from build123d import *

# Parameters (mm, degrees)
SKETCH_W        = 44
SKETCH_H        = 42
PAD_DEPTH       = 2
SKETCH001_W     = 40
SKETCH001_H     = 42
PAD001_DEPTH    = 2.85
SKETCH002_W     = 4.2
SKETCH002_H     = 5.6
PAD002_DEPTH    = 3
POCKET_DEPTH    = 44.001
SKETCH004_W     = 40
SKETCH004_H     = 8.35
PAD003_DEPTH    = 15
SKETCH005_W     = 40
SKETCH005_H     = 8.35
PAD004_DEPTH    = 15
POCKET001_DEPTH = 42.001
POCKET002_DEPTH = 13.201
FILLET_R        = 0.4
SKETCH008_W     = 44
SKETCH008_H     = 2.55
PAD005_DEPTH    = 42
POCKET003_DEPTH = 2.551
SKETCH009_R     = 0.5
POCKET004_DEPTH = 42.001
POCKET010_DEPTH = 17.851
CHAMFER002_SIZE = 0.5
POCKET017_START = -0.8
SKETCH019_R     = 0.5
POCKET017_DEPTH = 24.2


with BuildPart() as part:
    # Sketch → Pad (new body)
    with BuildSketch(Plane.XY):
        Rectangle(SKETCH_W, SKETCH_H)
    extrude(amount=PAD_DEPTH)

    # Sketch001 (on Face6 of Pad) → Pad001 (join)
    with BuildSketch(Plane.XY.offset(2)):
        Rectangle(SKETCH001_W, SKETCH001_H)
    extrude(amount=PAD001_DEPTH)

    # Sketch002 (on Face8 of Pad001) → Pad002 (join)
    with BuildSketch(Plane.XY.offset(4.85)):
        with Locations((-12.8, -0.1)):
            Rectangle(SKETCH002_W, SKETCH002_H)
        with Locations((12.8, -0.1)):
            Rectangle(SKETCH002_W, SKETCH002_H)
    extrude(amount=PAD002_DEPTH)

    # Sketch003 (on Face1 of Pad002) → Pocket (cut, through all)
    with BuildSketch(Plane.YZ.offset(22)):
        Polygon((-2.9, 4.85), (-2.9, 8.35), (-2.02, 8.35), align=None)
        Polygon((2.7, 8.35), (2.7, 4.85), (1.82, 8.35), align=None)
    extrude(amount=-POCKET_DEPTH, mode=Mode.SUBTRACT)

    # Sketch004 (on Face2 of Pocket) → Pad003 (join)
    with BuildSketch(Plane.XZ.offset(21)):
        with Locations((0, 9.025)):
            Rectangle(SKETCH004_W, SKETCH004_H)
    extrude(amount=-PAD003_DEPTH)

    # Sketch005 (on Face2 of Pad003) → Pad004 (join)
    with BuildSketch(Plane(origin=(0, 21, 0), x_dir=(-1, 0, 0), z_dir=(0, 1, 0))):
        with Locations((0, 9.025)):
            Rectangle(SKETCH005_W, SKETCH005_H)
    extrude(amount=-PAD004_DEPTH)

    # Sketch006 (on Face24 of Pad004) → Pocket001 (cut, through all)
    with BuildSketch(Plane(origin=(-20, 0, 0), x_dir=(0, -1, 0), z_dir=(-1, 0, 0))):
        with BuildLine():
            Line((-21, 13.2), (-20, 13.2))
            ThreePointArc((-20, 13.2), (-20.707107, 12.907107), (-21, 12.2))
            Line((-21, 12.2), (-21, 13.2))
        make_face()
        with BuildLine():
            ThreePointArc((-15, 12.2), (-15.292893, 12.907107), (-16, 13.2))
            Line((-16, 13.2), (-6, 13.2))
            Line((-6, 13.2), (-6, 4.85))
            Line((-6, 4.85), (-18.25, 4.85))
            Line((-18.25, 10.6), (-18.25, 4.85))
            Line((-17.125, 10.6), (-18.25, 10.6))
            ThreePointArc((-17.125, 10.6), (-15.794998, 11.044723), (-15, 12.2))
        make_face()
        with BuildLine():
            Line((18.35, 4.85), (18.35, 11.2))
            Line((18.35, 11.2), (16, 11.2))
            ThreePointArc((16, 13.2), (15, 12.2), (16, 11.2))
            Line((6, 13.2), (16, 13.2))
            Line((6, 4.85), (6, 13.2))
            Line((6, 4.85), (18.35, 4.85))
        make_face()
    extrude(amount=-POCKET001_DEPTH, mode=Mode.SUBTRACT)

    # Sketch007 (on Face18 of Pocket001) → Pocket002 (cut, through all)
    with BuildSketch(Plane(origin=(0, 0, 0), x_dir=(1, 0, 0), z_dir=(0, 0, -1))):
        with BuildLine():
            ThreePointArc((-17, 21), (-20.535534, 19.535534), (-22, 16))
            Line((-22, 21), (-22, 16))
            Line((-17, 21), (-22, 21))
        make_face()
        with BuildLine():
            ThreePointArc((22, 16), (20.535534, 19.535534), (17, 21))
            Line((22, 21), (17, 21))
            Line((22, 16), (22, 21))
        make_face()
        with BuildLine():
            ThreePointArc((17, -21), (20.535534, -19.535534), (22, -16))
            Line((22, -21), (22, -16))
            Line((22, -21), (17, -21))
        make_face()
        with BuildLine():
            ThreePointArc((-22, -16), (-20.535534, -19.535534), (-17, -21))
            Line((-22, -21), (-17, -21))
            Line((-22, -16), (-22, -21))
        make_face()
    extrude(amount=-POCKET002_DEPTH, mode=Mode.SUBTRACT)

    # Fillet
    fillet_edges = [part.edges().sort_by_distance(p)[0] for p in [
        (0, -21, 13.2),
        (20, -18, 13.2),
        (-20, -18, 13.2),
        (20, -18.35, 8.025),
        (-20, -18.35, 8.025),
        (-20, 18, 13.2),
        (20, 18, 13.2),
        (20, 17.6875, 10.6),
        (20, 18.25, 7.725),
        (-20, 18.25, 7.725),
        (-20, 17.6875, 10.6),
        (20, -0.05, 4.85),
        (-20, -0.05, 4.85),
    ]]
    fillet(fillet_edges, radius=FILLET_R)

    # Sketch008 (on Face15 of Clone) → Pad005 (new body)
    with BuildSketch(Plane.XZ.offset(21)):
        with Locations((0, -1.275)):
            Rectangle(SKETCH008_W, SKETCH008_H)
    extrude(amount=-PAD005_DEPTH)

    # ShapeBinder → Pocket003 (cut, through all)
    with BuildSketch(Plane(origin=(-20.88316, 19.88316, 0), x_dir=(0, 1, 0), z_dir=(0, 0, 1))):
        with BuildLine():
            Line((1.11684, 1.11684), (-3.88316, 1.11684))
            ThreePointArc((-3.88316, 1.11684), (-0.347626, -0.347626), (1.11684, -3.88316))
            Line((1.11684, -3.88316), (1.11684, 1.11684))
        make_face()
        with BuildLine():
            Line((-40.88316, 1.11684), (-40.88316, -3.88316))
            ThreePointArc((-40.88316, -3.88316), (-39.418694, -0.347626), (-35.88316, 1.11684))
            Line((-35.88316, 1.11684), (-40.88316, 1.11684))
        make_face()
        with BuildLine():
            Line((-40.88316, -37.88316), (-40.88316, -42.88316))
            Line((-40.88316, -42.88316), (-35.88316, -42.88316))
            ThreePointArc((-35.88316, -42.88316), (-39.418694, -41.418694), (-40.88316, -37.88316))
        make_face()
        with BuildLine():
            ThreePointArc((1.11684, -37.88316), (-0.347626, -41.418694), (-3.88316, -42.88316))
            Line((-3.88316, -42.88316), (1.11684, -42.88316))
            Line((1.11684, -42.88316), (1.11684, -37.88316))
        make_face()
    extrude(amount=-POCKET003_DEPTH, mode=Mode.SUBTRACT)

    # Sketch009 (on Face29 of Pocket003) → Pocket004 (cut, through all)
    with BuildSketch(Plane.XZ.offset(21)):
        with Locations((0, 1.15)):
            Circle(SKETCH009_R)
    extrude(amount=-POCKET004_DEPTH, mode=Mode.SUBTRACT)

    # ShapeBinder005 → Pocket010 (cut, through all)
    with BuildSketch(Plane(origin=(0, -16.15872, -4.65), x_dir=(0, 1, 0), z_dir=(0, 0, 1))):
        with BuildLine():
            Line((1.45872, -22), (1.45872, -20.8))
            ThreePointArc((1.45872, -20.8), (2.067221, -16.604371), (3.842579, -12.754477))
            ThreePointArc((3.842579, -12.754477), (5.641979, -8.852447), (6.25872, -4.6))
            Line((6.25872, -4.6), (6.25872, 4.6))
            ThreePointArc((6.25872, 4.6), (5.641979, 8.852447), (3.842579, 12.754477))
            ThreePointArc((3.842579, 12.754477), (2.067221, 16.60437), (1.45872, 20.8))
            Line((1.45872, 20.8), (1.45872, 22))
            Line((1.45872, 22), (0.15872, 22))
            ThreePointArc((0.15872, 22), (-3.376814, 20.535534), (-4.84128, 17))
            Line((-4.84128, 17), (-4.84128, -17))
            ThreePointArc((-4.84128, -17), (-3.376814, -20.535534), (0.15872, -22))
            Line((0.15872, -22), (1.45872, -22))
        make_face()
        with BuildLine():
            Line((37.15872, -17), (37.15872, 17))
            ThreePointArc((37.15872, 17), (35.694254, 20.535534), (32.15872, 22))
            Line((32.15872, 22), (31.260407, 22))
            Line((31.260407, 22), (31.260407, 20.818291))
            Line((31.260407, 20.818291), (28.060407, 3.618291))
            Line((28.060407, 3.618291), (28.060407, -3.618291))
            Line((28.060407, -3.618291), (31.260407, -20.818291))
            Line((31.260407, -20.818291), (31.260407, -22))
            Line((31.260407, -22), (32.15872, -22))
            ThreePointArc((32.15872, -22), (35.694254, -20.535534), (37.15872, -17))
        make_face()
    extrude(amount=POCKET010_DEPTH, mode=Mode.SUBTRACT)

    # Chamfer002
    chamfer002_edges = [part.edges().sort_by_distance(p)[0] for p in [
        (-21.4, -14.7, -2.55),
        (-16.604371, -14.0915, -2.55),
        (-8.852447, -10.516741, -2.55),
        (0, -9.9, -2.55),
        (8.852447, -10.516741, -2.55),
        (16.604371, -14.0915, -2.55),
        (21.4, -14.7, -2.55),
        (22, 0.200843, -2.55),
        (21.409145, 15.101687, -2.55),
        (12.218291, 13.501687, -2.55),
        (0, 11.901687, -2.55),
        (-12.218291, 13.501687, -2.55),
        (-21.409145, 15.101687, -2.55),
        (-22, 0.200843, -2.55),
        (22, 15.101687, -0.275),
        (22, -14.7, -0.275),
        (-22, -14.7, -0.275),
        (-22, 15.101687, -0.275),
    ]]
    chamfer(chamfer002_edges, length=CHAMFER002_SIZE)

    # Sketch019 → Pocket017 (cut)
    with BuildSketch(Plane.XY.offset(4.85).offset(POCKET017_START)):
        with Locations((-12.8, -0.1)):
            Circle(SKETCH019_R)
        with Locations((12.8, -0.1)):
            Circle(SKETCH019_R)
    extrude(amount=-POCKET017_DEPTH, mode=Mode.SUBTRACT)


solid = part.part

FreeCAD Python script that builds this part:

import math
import FreeCAD as App
import Part
import Sketcher
from FreeCAD import Vector


def edges_at(feature, points):
    """Names of the edges that pass closest to the given points."""
    edges = feature.Shape.Edges
    near = lambda p: min(range(len(edges)), key=lambda i: edges[i].distToShape(Part.Vertex(*p))[0])
    return sorted({f"Edge{near(p) + 1}" for p in points})


def add_polygon(sketch, points):
    """Adds a closed chain of lines whose ends are joined by coincident constraints."""
    first, n = sketch.GeometryCount, len(points)
    for a, b in zip(points, points[1:] + points[:1]):
        sketch.addGeometry(Part.LineSegment(App.Vector(*a, 0), App.Vector(*b, 0)), False)
    for i in range(n):
        sketch.addConstraint(Sketcher.Constraint("Coincident", first + i, 2, first + (i + 1) % n, 1))

doc = App.newDocument("Part")
body = doc.addObject("PartDesign::Body", "Body")

sketch1 = doc.addObject("Sketcher::SketchObject", "Sketch")
body.addObject(sketch1)
sketch1.AttachmentSupport = (doc.XY_Plane, [""])
sketch1.MapMode = "FlatFace"
add_polygon(sketch1, [(-22, 21), (-22, -21), (22, -21), (22, 21)])
sketch1.addConstraint([
    Sketcher.Constraint("Vertical", 0),
    Sketcher.Constraint("Horizontal", 1),
    Sketcher.Constraint("Vertical", 2),
    Sketcher.Constraint("Horizontal", 3),
    Sketcher.Constraint("Symmetric", 0, 2, 2, 2, -1, 1),
    Sketcher.Constraint("DistanceX", 1, 1, 1, 2, 44.0),
    Sketcher.Constraint("DistanceY", 0, 2, 0, 1, 42.0),
])
pad1 = doc.addObject("PartDesign::Pad", "Pad")
body.addObject(pad1)
pad1.Profile = sketch1
pad1.Length = 2

sketch2 = doc.addObject("Sketcher::SketchObject", "Sketch001")
body.addObject(sketch2)
sketch2.AttachmentSupport = (doc.XY_Plane, [""])
sketch2.MapMode = "FlatFace"
sketch2.AttachmentOffset = App.Placement(Vector(0, 0, 2), App.Rotation())
add_polygon(sketch2, [(-20, 21), (-20, -21), (20, -21), (20, 21)])
sketch2.addConstraint([
    Sketcher.Constraint("Vertical", 0),
    Sketcher.Constraint("Horizontal", 1),
    Sketcher.Constraint("Vertical", 2),
    Sketcher.Constraint("Horizontal", 3),
    Sketcher.Constraint("Symmetric", 0, 2, 2, 2, -1, 1),
    Sketcher.Constraint("DistanceX", 1, 1, 1, 2, 40.0),
    Sketcher.Constraint("DistanceY", 0, 2, 0, 1, 42.0),
])
pad2 = doc.addObject("PartDesign::Pad", "Pad001")
body.addObject(pad2)
pad2.Profile = sketch2
pad2.Length = 2.85

sketch3 = doc.addObject("Sketcher::SketchObject", "Sketch002")
body.addObject(sketch3)
sketch3.AttachmentSupport = (doc.XY_Plane, [""])
sketch3.MapMode = "FlatFace"
sketch3.AttachmentOffset = App.Placement(Vector(0, 0, 4.85), App.Rotation())
add_polygon(sketch3, [(-14.9, 2.7), (-14.9, -2.9), (-10.7, -2.9), (-10.7, 2.7)])
add_polygon(sketch3, [(10.7, 2.7), (10.7, -2.9), (14.9, -2.9), (14.9, 2.7)])
sketch3.addConstraint([
    Sketcher.Constraint("Vertical", 0),
    Sketcher.Constraint("Horizontal", 1),
    Sketcher.Constraint("Vertical", 2),
    Sketcher.Constraint("Horizontal", 3),
    Sketcher.Constraint("Vertical", 4),
    Sketcher.Constraint("Horizontal", 5),
    Sketcher.Constraint("Vertical", 6),
    Sketcher.Constraint("Horizontal", 7),
    Sketcher.Constraint("Symmetric", 1, 2, 4, 2, -2),
    Sketcher.Constraint("Symmetric", 3, 2, 6, 2, -2),
    Sketcher.Constraint("DistanceX", 1, 1, 1, 2, 4.2),
    Sketcher.Constraint("DistanceY", 0, 2, 0, 1, 5.6),
    Sketcher.Constraint("DistanceX", 0, 2, -1, 1, 14.9),
    Sketcher.Constraint("DistanceY", 0, 2, -1, 1, 2.9),
])
pad3 = doc.addObject("PartDesign::Pad", "Pad002")
body.addObject(pad3)
pad3.Profile = sketch3
pad3.Length = 3

sketch4 = doc.addObject("Sketcher::SketchObject", "Sketch003")
body.addObject(sketch4)
sketch4.AttachmentSupport = (doc.YZ_Plane, [""])
sketch4.MapMode = "FlatFace"
sketch4.AttachmentOffset = App.Placement(Vector(0, 0, 22), App.Rotation())
add_polygon(sketch4, [(-2.9, 8.35), (-2.9, 4.85), (-2.02, 8.35)])
add_polygon(sketch4, [(2.7, 4.85), (2.7, 8.35), (1.82, 8.35)])
sketch4.addConstraint([
    Sketcher.Constraint("Vertical", 0),
    Sketcher.Constraint("Horizontal", 2),
    Sketcher.Constraint("Vertical", 3),
    Sketcher.Constraint("Horizontal", 4),
    Sketcher.Constraint("Horizontal", 2, 2, 3, 2),
    Sketcher.Constraint("Horizontal", 0, 2, 5, 2),
    Sketcher.Constraint("Equal", 2, 4),
    Sketcher.Constraint("DistanceY", 0, 2, 0, 1, 3.5),
    Sketcher.Constraint("DistanceX", 2, 2, 2, 1, 0.88),
    Sketcher.Constraint("DistanceX", 0, 2, -1, 1, 2.9),
    Sketcher.Constraint("DistanceX", -1, 1, 3, 2, 2.7),
    Sketcher.Constraint("DistanceY", -1, 1, 0, 2, 4.85),
])
pocket1 = doc.addObject("PartDesign::Pocket", "Pocket")
body.addObject(pocket1)
pocket1.Profile = sketch4
pocket1.Type = "ThroughAll"

sketch5 = doc.addObject("Sketcher::SketchObject", "Sketch004")
body.addObject(sketch5)
sketch5.AttachmentSupport = (doc.XZ_Plane, [""])
sketch5.MapMode = "FlatFace"
sketch5.AttachmentOffset = App.Placement(Vector(0, 0, 21), App.Rotation())
add_polygon(sketch5, [(-20, 13.2), (-20, 4.85), (20, 4.85), (20, 13.2)])
sketch5.addConstraint([
    Sketcher.Constraint("Vertical", 0),
    Sketcher.Constraint("Horizontal", 1),
    Sketcher.Constraint("Vertical", 2),
    Sketcher.Constraint("Horizontal", 3),
    Sketcher.Constraint("DistanceX", 1, 1, 1, 2, 40.0),
    Sketcher.Constraint("DistanceX", 0, 2, -1, 1, 20.0),
    Sketcher.Constraint("DistanceY", 0, 2, 0, 1, 8.35),
    Sketcher.Constraint("DistanceY", -1, 1, 2, 2, 13.2),
])
pad4 = doc.addObject("PartDesign::Pad", "Pad003")
body.addObject(pad4)
pad4.Profile = sketch5
pad4.Length = 15
pad4.Reversed = True

sketch6 = doc.addObject("Sketcher::SketchObject", "Sketch005")
body.addObject(sketch6)
sketch6.AttachmentSupport = (doc.XZ_Plane, [""])
sketch6.MapMode = "FlatFace"
sketch6.AttachmentOffset = App.Placement(Vector(0, 0, -21), App.Rotation())
add_polygon(sketch6, [(20, 13.2), (20, 4.85), (-20, 4.85), (-20, 13.2)])
sketch6.addConstraint([
    Sketcher.Constraint("Vertical", 0),
    Sketcher.Constraint("Horizontal", 1),
    Sketcher.Constraint("Vertical", 2),
    Sketcher.Constraint("Horizontal", 3),
    Sketcher.Constraint("DistanceX", 1, 2, 1, 1, 40.0),
    Sketcher.Constraint("DistanceX", -1, 1, 0, 2, 20.0),
    Sketcher.Constraint("DistanceY", 0, 2, 0, 1, 8.35),
    Sketcher.Constraint("DistanceY", -1, 1, 2, 2, 13.2),
])
pad5 = doc.addObject("PartDesign::Pad", "Pad004")
body.addObject(pad5)
pad5.Profile = sketch6
pad5.Length = 15

sketch7 = doc.addObject("Sketcher::SketchObject", "Sketch006")
body.addObject(sketch7)
sketch7.AttachmentSupport = (doc.YZ_Plane, [""])
sketch7.MapMode = "FlatFace"
sketch7.AttachmentOffset = App.Placement(Vector(0, 0, -20), App.Rotation())
sketch7.addGeometry([
    Part.LineSegment(Vector(20, 13.2, 0), Vector(21, 13.2, 0)),
    Part.LineSegment(Vector(21, 13.2, 0), Vector(21, 12.2, 0)),
    Part.ArcOfCircle(Part.Circle(Vector(20.000001, 12.200001, 0), Vector(0, 0, 1), 0.999999), math.radians(-0.000043), math.radians(90.000043)),
    Part.ArcOfCircle(Part.Circle(Vector(15.999999, 12.200001, 0), Vector(0, 0, 1), 0.999999), math.radians(89.999957), math.radians(180.000043)),
    Part.ArcOfCircle(Part.Circle(Vector(17.125, 12.811132, 0), Vector(0, 0, 1), 2.211132), math.radians(-163.955204), math.radians(-89.999989)),
    Part.LineSegment(Vector(17.125, 10.6, 0), Vector(18.25, 10.6, 0)),
    Part.LineSegment(Vector(18.25, 10.6, 0), Vector(18.25, 4.85, 0)),
    Part.LineSegment(Vector(18.25, 4.85, 0), Vector(6, 4.85, 0)),
    Part.LineSegment(Vector(6, 4.85, 0), Vector(6, 13.2, 0)),
    Part.LineSegment(Vector(6, 13.2, 0), Vector(16, 13.2, 0)),
    Part.LineSegment(Vector(-18.35, 4.85, 0), Vector(-18.35, 11.2, 0)),
    Part.LineSegment(Vector(-18.35, 11.2, 0), Vector(-16, 11.2, 0)),
    Part.ArcOfCircle(Part.Circle(Vector(-16, 12.2, 0), Vector(0, 0, 1), 1), math.radians(-90), math.radians(90)),
    Part.LineSegment(Vector(-16, 13.2, 0), Vector(-6, 13.2, 0)),
    Part.LineSegment(Vector(-6, 13.2, 0), Vector(-6, 4.85, 0)),
    Part.LineSegment(Vector(-6, 4.85, 0), Vector(-18.35, 4.85, 0)),
], False)
sketch7.addConstraint([
    Sketcher.Constraint("Coincident", 0, 2, 1, 1),
    Sketcher.Constraint("Tangent", 1, 2, 2, 1),
    Sketcher.Constraint("Tangent", 2, 2, 0, 1),
    Sketcher.Constraint("Coincident", 3, 2, 4, 1),
    Sketcher.Constraint("Tangent", 4, 2, 5, 1),
    Sketcher.Constraint("Coincident", 5, 2, 6, 1),
    Sketcher.Constraint("Coincident", 6, 2, 7, 1),
    Sketcher.Constraint("Coincident", 7, 2, 8, 1),
    Sketcher.Constraint("Coincident", 8, 2, 9, 1),
    Sketcher.Constraint("Tangent", 9, 2, 3, 1),
    Sketcher.Constraint("Coincident", 10, 2, 11, 1),
    Sketcher.Constraint("Tangent", 11, 2, 12, 1),
    Sketcher.Constraint("Tangent", 12, 2, 13, 1),
    Sketcher.Constraint("Coincident", 13, 2, 14, 1),
    Sketcher.Constraint("Coincident", 14, 2, 15, 1),
    Sketcher.Constraint("Coincident", 15, 2, 10, 1),
    Sketcher.Constraint("Horizontal", 0),
    Sketcher.Constraint("Vertical", 1),
    Sketcher.Constraint("Horizontal", 5),
    Sketcher.Constraint("Vertical", 6),
    Sketcher.Constraint("Horizontal", 7),
    Sketcher.Constraint("Vertical", 8),
    Sketcher.Constraint("Horizontal", 9),
    Sketcher.Constraint("Vertical", 10),
    Sketcher.Constraint("Horizontal", 11),
    Sketcher.Constraint("Horizontal", 13),
    Sketcher.Constraint("Vertical", 14),
    Sketcher.Constraint("Horizontal", 15),
    Sketcher.Constraint("Equal", 2, 3),
    Sketcher.Constraint("Equal", 3, 12),
    Sketcher.Constraint("Symmetric", 3, 3, 12, 3, -2),
    Sketcher.Constraint("Symmetric", 7, 2, 14, 2, -2),
    Sketcher.Constraint("Horizontal", 2, 3, 3, 3),
    Sketcher.Constraint("Horizontal", 1, 2, 3, 2),
    Sketcher.Constraint("Radius", 2, 0.999999),
    Sketcher.Constraint("DistanceX", 9, 1, 9, 2, 10.0),
    Sketcher.Constraint("DistanceX", -1, 1, 2, 3, 20.000001),
    Sketcher.Constraint("DistanceX", -1, 1, 3, 3, 15.999999),
    Sketcher.Constraint("DistanceX", 7, 2, 7, 1, 12.25),
    Sketcher.Constraint("DistanceX", 11, 1, 11, 2, 2.35),
    Sketcher.Constraint("DistanceY", 6, 2, 6, 1, 5.75),
    Sketcher.Constraint("DistanceY", 8, 1, 8, 2, 8.35),
    Sketcher.Constraint("DistanceY", -1, 1, 2, 3, 12.200001),
    Sketcher.Constraint("DistanceX", 5, 1, 5, 2, 1.125),
])
pocket2 = doc.addObject("PartDesign::Pocket", "Pocket001")
body.addObject(pocket2)
pocket2.Profile = sketch7
pocket2.Type = "ThroughAll"
pocket2.Reversed = True

sketch8 = doc.addObject("Sketcher::SketchObject", "Sketch007")
body.addObject(sketch8)
sketch8.AttachmentSupport = (doc.XY_Plane, [""])
sketch8.MapMode = "FlatFace"
sketch8.addGeometry([
    Part.ArcOfCircle(Part.Circle(Vector(-17, -16, 0), Vector(0, 0, 1), 5), math.radians(179.999996), math.radians(270.000004)),
    Part.LineSegment(Vector(-17, -21, 0), Vector(-22, -21, 0)),
    Part.LineSegment(Vector(-22, -21, 0), Vector(-22, -16, 0)),
    Part.ArcOfCircle(Part.Circle(Vector(17, -16, 0), Vector(0, 0, 1), 5), math.radians(-90.000004), math.radians(0.000004)),
    Part.LineSegment(Vector(22, -16, 0), Vector(22, -21, 0)),
    Part.LineSegment(Vector(22, -21, 0), Vector(17, -21, 0)),
    Part.ArcOfCircle(Part.Circle(Vector(17, 16, 0), Vector(0, 0, 1), 5), math.radians(-0.000004), math.radians(90.000004)),
    Part.LineSegment(Vector(17, 21, 0), Vector(22, 21, 0)),
    Part.LineSegment(Vector(22, 21, 0), Vector(22, 16, 0)),
    Part.ArcOfCircle(Part.Circle(Vector(-17, 16, 0), Vector(0, 0, 1), 5), math.radians(89.999996), math.radians(180.000004)),
    Part.LineSegment(Vector(-22, 16, 0), Vector(-22, 21, 0)),
    Part.LineSegment(Vector(-22, 21, 0), Vector(-17, 21, 0)),
], False)
sketch8.addConstraint([
    Sketcher.Constraint("Tangent", 0, 2, 1, 1),
    Sketcher.Constraint("Coincident", 1, 2, 2, 1),
    Sketcher.Constraint("Tangent", 2, 2, 0, 1),
    Sketcher.Constraint("Tangent", 3, 2, 4, 1),
    Sketcher.Constraint("Coincident", 4, 2, 5, 1),
    Sketcher.Constraint("Tangent", 5, 2, 3, 1),
    Sketcher.Constraint("Tangent", 6, 2, 7, 1),
    Sketcher.Constraint("Coincident", 7, 2, 8, 1),
    Sketcher.Constraint("Tangent", 8, 2, 6, 1),
    Sketcher.Constraint("Tangent", 9, 2, 10, 1),
    Sketcher.Constraint("Coincident", 10, 2, 11, 1),
    Sketcher.Constraint("Tangent", 11, 2, 9, 1),
    Sketcher.Constraint("Horizontal", 1),
    Sketcher.Constraint("Vertical", 2),
    Sketcher.Constraint("Vertical", 4),
    Sketcher.Constraint("Horizontal", 5),
    Sketcher.Constraint("Horizontal", 7),
    Sketcher.Constraint("Vertical", 8),
    Sketcher.Constraint("Vertical", 10),
    Sketcher.Constraint("Horizontal", 11),
    Sketcher.Constraint("Equal", 0, 3),
    Sketcher.Constraint("Equal", 3, 6),
    Sketcher.Constraint("Equal", 6, 9),
    Sketcher.Constraint("Symmetric", 0, 3, 6, 3, -1, 1),
    Sketcher.Constraint("Symmetric", 3, 3, 9, 3, -1, 1),
    Sketcher.Constraint("Symmetric", 0, 3, 3, 3, -2),
    Sketcher.Constraint("Radius", 0, 5.0),
    Sketcher.Constraint("DistanceX", 0, 3, -1, 1, 17.0),
    Sketcher.Constraint("DistanceY", 0, 3, -1, 1, 16.0),
])
pocket3 = doc.addObject("PartDesign::Pocket", "Pocket002")
body.addObject(pocket3)
pocket3.Profile = sketch8
pocket3.Type = "ThroughAll"
pocket3.Reversed = True
doc.recompute()

fillet = doc.addObject("PartDesign::Fillet", "Fillet")
body.addObject(fillet)
fillet.Base = (pocket3, edges_at(pocket3, [
    (0, -21, 13.2),
    (20, -18, 13.2),
    (-20, -18, 13.2),
    (20, -18.35, 8.025),
    (-20, -18.35, 8.025),
    (-20, 18, 13.2),
    (20, 18, 13.2),
    (20, 17.688, 10.6),
    (20, 18.25, 7.725),
    (-20, 18.25, 7.725),
    (-20, 17.688, 10.6),
    (20, -0.05, 4.85),
    (-20, -0.05, 4.85),
]))
fillet.Radius = 0.4

sketch9 = doc.addObject("Sketcher::SketchObject", "Sketch008")
body.addObject(sketch9)
sketch9.AttachmentSupport = (doc.XZ_Plane, [""])
sketch9.MapMode = "FlatFace"
sketch9.AttachmentOffset = App.Placement(Vector(0, 0, 21), App.Rotation())
add_polygon(sketch9, [(-22, 0), (-22, -2.55), (22, -2.55), (22, 0)])
sketch9.addConstraint([
    Sketcher.Constraint("Vertical", 0),
    Sketcher.Constraint("Horizontal", 1),
    Sketcher.Constraint("Vertical", 2),
    Sketcher.Constraint("Horizontal", 3),
    Sketcher.Constraint("Symmetric", 2, 2, 3, 2, -1, 1),
    Sketcher.Constraint("DistanceX", 1, 1, 1, 2, 44.0),
    Sketcher.Constraint("DistanceY", 0, 2, 0, 1, 2.55),
])
pad6 = doc.addObject("PartDesign::Pad", "Pad005")
body.addObject(pad6)
pad6.Profile = sketch9
pad6.Length = 42
pad6.Reversed = True

sketch10 = doc.addObject("Sketcher::SketchObject", "Sketch009")
body.addObject(sketch10)
sketch10.AttachmentSupport = (doc.XY_Plane, [""])
sketch10.MapMode = "FlatFace"
sketch10.addGeometry([
    Part.LineSegment(Vector(-22, 21, 0), Vector(-22, 16, 0)),
    Part.ArcOfCircle(Part.Circle(Vector(-17, 16, 0), Vector(0, 0, 1), 5), math.radians(89.999996), math.radians(180.000004)),
    Part.LineSegment(Vector(-17, 21, 0), Vector(-22, 21, 0)),
    Part.LineSegment(Vector(-22, -21, 0), Vector(-17, -21, 0)),
    Part.ArcOfCircle(Part.Circle(Vector(-17, -16, 0), Vector(0, 0, 1), 5), math.radians(179.999996), math.radians(270.000004)),
    Part.LineSegment(Vector(-22, -16, 0), Vector(-22, -21, 0)),
    Part.LineSegment(Vector(17, -21, 0), Vector(22, -21, 0)),
    Part.LineSegment(Vector(22, -21, 0), Vector(22, -16, 0)),
    Part.ArcOfCircle(Part.Circle(Vector(17, -16, 0), Vector(0, 0, 1), 5), math.radians(-90.000004), math.radians(0.000004)),
    Part.ArcOfCircle(Part.Circle(Vector(17, 16, 0), Vector(0, 0, 1), 5), math.radians(-0.000004), math.radians(90.000004)),
    Part.LineSegment(Vector(22, 16, 0), Vector(22, 21, 0)),
    Part.LineSegment(Vector(22, 21, 0), Vector(17, 21, 0)),
], False)
sketch10.addConstraint([
    Sketcher.Constraint("Tangent", 0, 2, 1, 2),
    Sketcher.Constraint("Tangent", 1, 1, 2, 1),
    Sketcher.Constraint("Coincident", 2, 2, 0, 1),
    Sketcher.Constraint("Tangent", 3, 2, 4, 2),
    Sketcher.Constraint("Tangent", 4, 1, 5, 1),
    Sketcher.Constraint("Coincident", 5, 2, 3, 1),
    Sketcher.Constraint("Coincident", 6, 2, 7, 1),
    Sketcher.Constraint("Tangent", 7, 2, 8, 2),
    Sketcher.Constraint("Tangent", 8, 1, 6, 1),
    Sketcher.Constraint("Tangent", 9, 1, 10, 1),
    Sketcher.Constraint("Coincident", 10, 2, 11, 1),
    Sketcher.Constraint("Tangent", 11, 2, 9, 2),
    Sketcher.Constraint("Vertical", 0),
    Sketcher.Constraint("Horizontal", 2),
    Sketcher.Constraint("Horizontal", 3),
    Sketcher.Constraint("Vertical", 5),
    Sketcher.Constraint("Horizontal", 6),
    Sketcher.Constraint("Vertical", 7),
    Sketcher.Constraint("Vertical", 10),
    Sketcher.Constraint("Horizontal", 11),
    Sketcher.Constraint("Equal", 1, 4),
    Sketcher.Constraint("Equal", 4, 8),
    Sketcher.Constraint("Equal", 8, 9),
    Sketcher.Constraint("Symmetric", 1, 3, 8, 3, -1, 1),
    Sketcher.Constraint("Symmetric", 4, 3, 9, 3, -1, 1),
    Sketcher.Constraint("Symmetric", 4, 3, 8, 3, -2),
    Sketcher.Constraint("Radius", 1, 5.0),
    Sketcher.Constraint("DistanceX", 1, 3, -1, 1, 17.0),
    Sketcher.Constraint("DistanceY", -1, 1, 1, 3, 16.0),
])
pocket4 = doc.addObject("PartDesign::Pocket", "Pocket003")
body.addObject(pocket4)
pocket4.Profile = sketch10
pocket4.Type = "ThroughAll"

sketch11 = doc.addObject("Sketcher::SketchObject", "Sketch010")
body.addObject(sketch11)
sketch11.AttachmentSupport = (doc.XZ_Plane, [""])
sketch11.MapMode = "FlatFace"
sketch11.AttachmentOffset = App.Placement(Vector(0, 0, 21), App.Rotation())
sketch11.addGeometry(Part.Circle(Vector(0, 1.15, 0), Vector(0, 0, 1), 0.5), False)
sketch11.addConstraint([
    Sketcher.Constraint("PointOnObject", 0, 3, -2),
    Sketcher.Constraint("Diameter", 0, 1.0),
    Sketcher.Constraint("DistanceY", -1, 1, 0, 3, 1.15),
])
pocket5 = doc.addObject("PartDesign::Pocket", "Pocket004")
body.addObject(pocket5)
pocket5.Profile = sketch11
pocket5.Type = "ThroughAll"

sketch12 = doc.addObject("Sketcher::SketchObject", "Sketch011")
body.addObject(sketch12)
sketch12.AttachmentSupport = (doc.XY_Plane, [""])
sketch12.MapMode = "FlatFace"
sketch12.AttachmentOffset = App.Placement(Vector(0, 0, -4.65), App.Rotation())
sketch12.addGeometry([
    Part.LineSegment(Vector(22, -14.7, 0), Vector(20.8, -14.7, 0)),
    Part.ArcOfCircle(Part.Circle(Vector(20.800004, 0.068763, 0), Vector(0, 0, 1), 14.768763), math.radians(-123.00871), math.radians(-90.000017)),
    Part.ArcOfCircle(Part.Circle(Vector(4.599997, -24.868761, 0), Vector(0, 0, 1), 14.968761), math.radians(56.991292), math.radians(89.99999)),
    Part.LineSegment(Vector(4.6, -9.9, 0), Vector(-4.6, -9.9, 0)),
    Part.ArcOfCircle(Part.Circle(Vector(-4.599997, -24.868761, 0), Vector(0, 0, 1), 14.968761), math.radians(90.00001), math.radians(123.008708)),
    Part.ArcOfCircle(Part.Circle(Vector(-20.800003, 0.068756, 0), Vector(0, 0, 1), 14.768756), math.radians(-89.99999), math.radians(-56.991283)),
    Part.LineSegment(Vector(-20.8, -14.7, 0), Vector(-22, -14.7, 0)),
    Part.LineSegment(Vector(-22, -14.7, 0), Vector(-22, -16, 0)),
    Part.ArcOfCircle(Part.Circle(Vector(-17, -16, 0), Vector(0, 0, 1), 5), math.radians(179.999996), math.radians(270.000004)),
    Part.LineSegment(Vector(-17, -21, 0), Vector(17, -21, 0)),
    Part.ArcOfCircle(Part.Circle(Vector(17, -16, 0), Vector(0, 0, 1), 5), math.radians(-90.000004), math.radians(0.000004)),
    Part.LineSegment(Vector(22, -16, 0), Vector(22, -14.7, 0)),
    Part.LineSegment(Vector(17, 21, 0), Vector(-17, 21, 0)),
    Part.ArcOfCircle(Part.Circle(Vector(-17, 16, 0), Vector(0, 0, 1), 5), math.radians(89.999996), math.radians(180.000004)),
    Part.LineSegment(Vector(-22, 16, 0), Vector(-22, 15.101687, 0)),
    Part.LineSegment(Vector(-22, 15.101687, 0), Vector(-20.818291, 15.101687, 0)),
    Part.LineSegment(Vector(-20.818291, 15.101687, 0), Vector(-3.618291, 11.901687, 0)),
    Part.LineSegment(Vector(-3.618291, 11.901687, 0), Vector(3.618291, 11.901687, 0)),
    Part.LineSegment(Vector(3.618291, 11.901687, 0), Vector(20.818291, 15.101687, 0)),
    Part.LineSegment(Vector(20.818291, 15.101687, 0), Vector(22, 15.101687, 0)),
    Part.LineSegment(Vector(22, 15.101687, 0), Vector(22, 16, 0)),
    Part.ArcOfCircle(Part.Circle(Vector(17, 16, 0), Vector(0, 0, 1), 5), math.radians(-0.000004), math.radians(90.000004)),
], False)
sketch12.addConstraint([
    Sketcher.Constraint("Coincident", 0, 2, 1, 2),
    Sketcher.Constraint("Coincident", 1, 1, 2, 1),
    Sketcher.Constraint("Coincident", 2, 2, 3, 1),
    Sketcher.Constraint("Coincident", 3, 2, 4, 1),
    Sketcher.Constraint("Coincident", 4, 2, 5, 2),
    Sketcher.Constraint("Coincident", 5, 1, 6, 1),
    Sketcher.Constraint("Coincident", 6, 2, 7, 1),
    Sketcher.Constraint("Coincident", 7, 2, 8, 1),
    Sketcher.Constraint("Coincident", 8, 2, 9, 1),
    Sketcher.Constraint("Coincident", 9, 2, 10, 1),
    Sketcher.Constraint("Coincident", 10, 2, 11, 1),
    Sketcher.Constraint("Coincident", 11, 2, 0, 1),
    Sketcher.Constraint("Coincident", 12, 2, 13, 1),
    Sketcher.Constraint("Coincident", 13, 2, 14, 1),
    Sketcher.Constraint("Coincident", 14, 2, 15, 1),
    Sketcher.Constraint("Coincident", 15, 2, 16, 1),
    Sketcher.Constraint("Coincident", 16, 2, 17, 1),
    Sketcher.Constraint("Coincident", 17, 2, 18, 1),
    Sketcher.Constraint("Coincident", 18, 2, 19, 1),
    Sketcher.Constraint("Coincident", 19, 2, 20, 1),
    Sketcher.Constraint("Coincident", 20, 2, 21, 1),
    Sketcher.Constraint("Coincident", 21, 2, 12, 1),
    Sketcher.Constraint("Horizontal", 0),
    Sketcher.Constraint("Horizontal", 3),
    Sketcher.Constraint("Horizontal", 6),
    Sketcher.Constraint("Vertical", 7),
    Sketcher.Constraint("Horizontal", 9),
    Sketcher.Constraint("Vertical", 11),
    Sketcher.Constraint("Horizontal", 12),
    Sketcher.Constraint("Vertical", 14),
    Sketcher.Constraint("Horizontal", 15),
    Sketcher.Constraint("Horizontal", 17),
    Sketcher.Constraint("Horizontal", 19),
    Sketcher.Constraint("Vertical", 20),
    Sketcher.Constraint("Radius", 8, 5.0),
    Sketcher.Constraint("Radius", 10, 5.0),
    Sketcher.Constraint("Radius", 13, 5.0),
    Sketcher.Constraint("Radius", 21, 5.0),
    Sketcher.Constraint("DistanceX", 9, 1, 9, 2, 34.0),
    Sketcher.Constraint("DistanceX", 12, 2, 12, 1, 34.0),
    Sketcher.Constraint("DistanceX", 0, 2, 0, 1, 1.2),
    Sketcher.Constraint("DistanceX", 3, 2, 3, 1, 9.2),
    Sketcher.Constraint("DistanceX", 6, 2, 6, 1, 1.2),
    Sketcher.Constraint("DistanceY", 7, 2, 7, 1, 1.3),
    Sketcher.Constraint("DistanceY", 11, 1, 11, 2, 1.3),
    Sketcher.Constraint("DistanceX", 8, 3, -1, 1, 17.0),
    Sketcher.Constraint("DistanceY", 8, 3, -1, 1, 16.0),
    Sketcher.Constraint("DistanceX", -1, 1, 10, 3, 17.0),
    Sketcher.Constraint("DistanceX", 13, 3, -1, 1, 17.0),
    Sketcher.Constraint("DistanceY", -1, 1, 13, 3, 16.0),
    Sketcher.Constraint("DistanceX", -1, 1, 21, 3, 17.0),
    Sketcher.Constraint("DistanceY", 7, 2, -1, 1, 16.0),
    Sketcher.Constraint("DistanceX", 8, 2, -1, 1, 17.0),
    Sketcher.Constraint("DistanceY", 10, 2, -1, 1, 16.0),
    Sketcher.Constraint("DistanceX", 12, 2, -1, 1, 17.0),
    Sketcher.Constraint("DistanceY", -1, 1, 13, 2, 16.0),
    Sketcher.Constraint("DistanceY", -1, 1, 20, 2, 16.0),
    Sketcher.Constraint("DistanceX", -1, 1, 2, 2, 4.6),
    Sketcher.Constraint("DistanceY", 2, 2, -1, 1, 9.9),
    Sketcher.Constraint("DistanceX", 4, 3, 1, 3, 25.400002),
    Sketcher.Constraint("DistanceX", 5, 3, 2, 3, 25.4),
    Sketcher.Constraint("DistanceX", 15, 2, 16, 2, 17.2),
    Sketcher.Constraint("DistanceY", 16, 2, 15, 2, 3.2),
    Sketcher.Constraint("DistanceX", 17, 2, 18, 2, 17.2),
    Sketcher.Constraint("DistanceY", 17, 2, 18, 2, 3.2),
    Sketcher.Constraint("Radius", 2, 14.968761),
    Sketcher.Constraint("Radius", 4, 14.968761),
    Sketcher.Constraint("Radius", 1, 14.768763),
    Sketcher.Constraint("DistanceX", 15, 1, 15, 2, 1.181709),
    Sketcher.Constraint("DistanceX", 19, 1, 19, 2, 1.181709),
    Sketcher.Constraint("DistanceY", 14, 2, 14, 1, 0.898313),
    Sketcher.Constraint("DistanceY", 1, 1, -1, 1, 12.316141),
    Sketcher.Constraint("DistanceY", 4, 2, -1, 1, 12.316141),
    Sketcher.Constraint("DistanceX", 15, 2, 5, 3, 0.018288),
])
pocket6 = doc.addObject("PartDesign::Pocket", "Pocket005")
body.addObject(pocket6)
pocket6.Profile = sketch12
pocket6.Type = "ThroughAll"
pocket6.Reversed = True
doc.recompute()

chamfer = doc.addObject("PartDesign::Chamfer", "Chamfer")
body.addObject(chamfer)
chamfer.Base = (pocket6, edges_at(pocket6, [
    (-21.4, -14.7, -2.55),
    (-16.604, -14.091, -2.55),
    (-8.852, -10.517, -2.55),
    (0, -9.9, -2.55),
    (8.852, -10.517, -2.55),
    (16.604, -14.091, -2.55),
    (21.4, -14.7, -2.55),
    (22, 0.201, -2.55),
    (21.409, 15.102, -2.55),
    (12.218, 13.502, -2.55),
    (0, 11.902, -2.55),
    (-12.218, 13.502, -2.55),
    (-21.409, 15.102, -2.55),
    (-22, 0.201, -2.55),
    (22, 15.102, -0.275),
    (22, -14.7, -0.275),
    (-22, -14.7, -0.275),
    (-22, 15.102, -0.275),
]))
chamfer.Size = 0.5

sketch13 = doc.addObject("Sketcher::SketchObject", "Sketch012")
body.addObject(sketch13)
sketch13.AttachmentSupport = (doc.XY_Plane, [""])
sketch13.MapMode = "FlatFace"
sketch13.AttachmentOffset = App.Placement(Vector(0, 0, 4.05), App.Rotation())
sketch13.addGeometry([
    Part.Circle(Vector(-12.8, -0.1, 0), Vector(0, 0, 1), 0.5),
    Part.Circle(Vector(12.8, -0.1, 0), Vector(0, 0, 1), 0.5),
], False)
sketch13.addConstraint([
    Sketcher.Constraint("Equal", 0, 1),
    Sketcher.Constraint("Symmetric", 0, 3, 1, 3, -2),
    Sketcher.Constraint("Diameter", 0, 1.0),
    Sketcher.Constraint("DistanceX", 0, 3, -1, 1, 12.8),
    Sketcher.Constraint("DistanceY", 0, 3, -1, 1, 0.1),
])
pocket7 = doc.addObject("PartDesign::Pocket", "Pocket006")
body.addObject(pocket7)
pocket7.Profile = sketch13
pocket7.Length = 24.2

doc.recompute()
